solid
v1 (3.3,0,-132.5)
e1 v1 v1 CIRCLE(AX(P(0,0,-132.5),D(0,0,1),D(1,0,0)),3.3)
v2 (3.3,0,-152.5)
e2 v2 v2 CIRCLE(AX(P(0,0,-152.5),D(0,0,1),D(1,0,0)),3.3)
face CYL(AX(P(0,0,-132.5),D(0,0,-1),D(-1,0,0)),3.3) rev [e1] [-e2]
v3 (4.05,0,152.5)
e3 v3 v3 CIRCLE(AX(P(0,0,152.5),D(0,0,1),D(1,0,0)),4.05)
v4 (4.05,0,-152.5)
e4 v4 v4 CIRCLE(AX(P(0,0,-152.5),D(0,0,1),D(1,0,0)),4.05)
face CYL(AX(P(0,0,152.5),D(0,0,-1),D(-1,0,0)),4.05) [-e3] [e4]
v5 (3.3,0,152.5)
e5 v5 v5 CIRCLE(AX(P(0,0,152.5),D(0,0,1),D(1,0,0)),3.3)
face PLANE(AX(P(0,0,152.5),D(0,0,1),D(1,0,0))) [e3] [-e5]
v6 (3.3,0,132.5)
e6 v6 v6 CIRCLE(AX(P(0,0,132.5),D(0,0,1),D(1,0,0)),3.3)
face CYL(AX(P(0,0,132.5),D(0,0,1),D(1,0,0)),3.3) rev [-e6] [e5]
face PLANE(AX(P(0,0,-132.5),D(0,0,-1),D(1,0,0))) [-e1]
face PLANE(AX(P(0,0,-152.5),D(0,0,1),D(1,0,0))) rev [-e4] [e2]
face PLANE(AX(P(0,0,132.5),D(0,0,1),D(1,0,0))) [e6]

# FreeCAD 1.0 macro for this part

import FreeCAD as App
import Part
import Sketcher

doc = App.newDocument("Part")
body = doc.addObject("PartDesign::Body", "Body")

# Sketch on XY plane
sketch1 = body.newObject("Sketcher::SketchObject", "Sketch")
sketch1.AttachmentSupport = (doc.getObject("XY_Plane"), [""])
sketch1.MapMode = "FlatFace"
sketch1.addGeometry(Part.Circle(App.Vector(0, 0, 0), App.Vector(0, 0, 1), 4), False)
sketch1.addConstraint(Sketcher.Constraint("Coincident", 0, 3, -1, 1))
sketch1.addConstraint(Sketcher.Constraint("Diameter", 0, 8.1))
pad1 = body.newObject("PartDesign::Pad", "Pad")
pad1.Profile = sketch1
pad1.Length = 305
pad1.Midplane = True

# Sketch on XY plane
sketch2 = body.newObject("Sketcher::SketchObject", "Sketch001")
sketch2.AttachmentSupport = (doc.getObject("XY_Plane"), [""])
sketch2.MapMode = "FlatFace"
sketch2.AttachmentOffset = App.Placement(App.Vector(0, 0, 152.5), App.Rotation())
sketch2.addGeometry(Part.Circle(App.Vector(0, 0, 0), App.Vector(0, 0, 1), 3.3), False)
sketch2.addConstraint(Sketcher.Constraint("Coincident", 0, 3, -1, 1))
sketch2.addConstraint(Sketcher.Constraint("Diameter", 0, 6.6))
pocket1 = body.newObject("PartDesign::Pocket", "Pocket")
pocket1.Profile = sketch2
pocket1.Length = 20
doc.recompute()

mirrored = body.newObject("PartDesign::Mirrored", "Mirrored")
mirrored.Originals = [pocket1]
mirrored.MirrorPlane = (doc.getObject("XY_Plane"), [""])
body.Tip = mirrored

doc.recompute()
